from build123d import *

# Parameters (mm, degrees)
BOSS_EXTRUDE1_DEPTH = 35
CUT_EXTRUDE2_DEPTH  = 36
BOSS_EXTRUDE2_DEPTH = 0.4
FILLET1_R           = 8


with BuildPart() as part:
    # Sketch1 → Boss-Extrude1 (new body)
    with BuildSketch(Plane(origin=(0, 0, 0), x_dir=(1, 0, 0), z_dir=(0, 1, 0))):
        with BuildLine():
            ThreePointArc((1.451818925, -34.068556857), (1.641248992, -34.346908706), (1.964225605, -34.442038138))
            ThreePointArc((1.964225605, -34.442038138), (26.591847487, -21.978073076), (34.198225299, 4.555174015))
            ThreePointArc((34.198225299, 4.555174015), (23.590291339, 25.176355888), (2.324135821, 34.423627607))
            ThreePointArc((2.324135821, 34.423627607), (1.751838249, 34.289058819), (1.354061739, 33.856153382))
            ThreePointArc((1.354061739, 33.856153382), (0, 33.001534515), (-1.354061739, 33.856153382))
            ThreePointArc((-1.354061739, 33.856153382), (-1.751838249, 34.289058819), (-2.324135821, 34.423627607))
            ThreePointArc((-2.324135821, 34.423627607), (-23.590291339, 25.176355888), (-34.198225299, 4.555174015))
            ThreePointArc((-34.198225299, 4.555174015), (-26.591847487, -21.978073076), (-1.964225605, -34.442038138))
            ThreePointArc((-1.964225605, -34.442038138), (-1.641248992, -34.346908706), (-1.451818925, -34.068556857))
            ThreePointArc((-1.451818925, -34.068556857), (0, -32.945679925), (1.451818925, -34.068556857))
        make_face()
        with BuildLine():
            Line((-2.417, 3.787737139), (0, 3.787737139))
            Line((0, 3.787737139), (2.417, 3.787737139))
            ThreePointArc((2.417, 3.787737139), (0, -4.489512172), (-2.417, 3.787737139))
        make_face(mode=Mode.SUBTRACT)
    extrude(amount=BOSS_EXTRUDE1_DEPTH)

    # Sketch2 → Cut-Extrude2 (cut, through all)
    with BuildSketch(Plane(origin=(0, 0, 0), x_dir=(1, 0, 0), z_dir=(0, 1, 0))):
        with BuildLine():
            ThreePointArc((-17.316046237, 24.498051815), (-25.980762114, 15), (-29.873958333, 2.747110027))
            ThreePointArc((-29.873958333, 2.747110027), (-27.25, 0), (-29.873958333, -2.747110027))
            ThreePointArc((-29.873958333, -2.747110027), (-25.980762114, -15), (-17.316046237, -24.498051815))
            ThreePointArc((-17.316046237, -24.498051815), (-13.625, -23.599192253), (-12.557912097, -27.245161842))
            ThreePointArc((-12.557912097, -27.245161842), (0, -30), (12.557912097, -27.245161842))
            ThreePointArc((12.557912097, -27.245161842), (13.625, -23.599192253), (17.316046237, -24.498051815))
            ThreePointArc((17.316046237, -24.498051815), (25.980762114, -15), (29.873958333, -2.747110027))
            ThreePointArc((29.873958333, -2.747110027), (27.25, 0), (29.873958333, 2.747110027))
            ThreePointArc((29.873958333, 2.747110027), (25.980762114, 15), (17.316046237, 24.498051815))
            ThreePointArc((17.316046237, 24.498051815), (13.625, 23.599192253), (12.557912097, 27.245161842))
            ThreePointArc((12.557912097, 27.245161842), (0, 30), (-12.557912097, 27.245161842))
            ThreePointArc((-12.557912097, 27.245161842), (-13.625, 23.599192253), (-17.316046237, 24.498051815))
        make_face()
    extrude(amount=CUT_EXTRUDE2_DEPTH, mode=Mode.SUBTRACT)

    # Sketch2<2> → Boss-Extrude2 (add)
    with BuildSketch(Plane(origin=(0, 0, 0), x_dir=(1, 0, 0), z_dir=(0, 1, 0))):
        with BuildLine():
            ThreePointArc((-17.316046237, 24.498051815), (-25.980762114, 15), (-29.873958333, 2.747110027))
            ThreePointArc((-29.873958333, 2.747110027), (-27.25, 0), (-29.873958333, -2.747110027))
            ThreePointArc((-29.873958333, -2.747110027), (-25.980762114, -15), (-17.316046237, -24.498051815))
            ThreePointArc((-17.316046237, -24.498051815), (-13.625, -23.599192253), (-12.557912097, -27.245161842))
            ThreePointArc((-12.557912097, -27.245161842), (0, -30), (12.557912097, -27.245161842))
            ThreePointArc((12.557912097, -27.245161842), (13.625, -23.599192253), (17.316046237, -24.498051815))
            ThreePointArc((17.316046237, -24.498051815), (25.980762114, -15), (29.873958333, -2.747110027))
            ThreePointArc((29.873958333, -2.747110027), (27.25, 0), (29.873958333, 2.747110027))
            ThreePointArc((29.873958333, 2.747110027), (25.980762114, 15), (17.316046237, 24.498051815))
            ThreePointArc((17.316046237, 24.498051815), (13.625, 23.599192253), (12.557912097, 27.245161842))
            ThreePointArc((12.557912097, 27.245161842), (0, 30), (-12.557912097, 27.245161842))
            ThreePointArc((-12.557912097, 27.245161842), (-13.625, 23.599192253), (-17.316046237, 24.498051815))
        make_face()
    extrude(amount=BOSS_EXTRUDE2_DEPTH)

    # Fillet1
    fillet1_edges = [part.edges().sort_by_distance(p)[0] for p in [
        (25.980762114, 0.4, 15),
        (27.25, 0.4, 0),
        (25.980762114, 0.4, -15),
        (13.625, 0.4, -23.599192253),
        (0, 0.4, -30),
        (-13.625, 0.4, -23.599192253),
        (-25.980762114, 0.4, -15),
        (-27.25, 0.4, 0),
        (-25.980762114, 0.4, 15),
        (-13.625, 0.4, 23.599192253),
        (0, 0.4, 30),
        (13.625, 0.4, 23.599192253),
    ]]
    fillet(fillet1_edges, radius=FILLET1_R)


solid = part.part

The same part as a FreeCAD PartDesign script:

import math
import FreeCAD as App
import Part
import Sketcher

V = App.Vector
Q = App.Units.Quantity


def edges_at(feature, points):
    """Names of the edges that pass closest to the given points."""
    edges = feature.Shape.Edges
    near = lambda p: min(range(len(edges)), key=lambda i: edges[i].distToShape(Part.Vertex(*p))[0])
    return sorted({f"Edge{near(p) + 1}" for p in points})

doc = App.newDocument("Part")
body = doc.addObject("PartDesign::Body", "Body")

sketch1 = body.newObject("Sketcher::SketchObject", "Sketch")
sketch1.AttachmentSupport = (doc.getObject("XZ_Plane"), [""])
sketch1.MapMode = "FlatFace"
sketch1.addGeometry([
    Part.ArcOfCircle(Part.Circle(V(1.935759, 33.942849, 0), V(0, 0, 1), 0.5), math.radians(86.736153), math.radians(165.438717)),
    Part.ArcOfCircle(Part.Circle(V(0, -0.002001, 0), V(0, 0, 1), 34.5), math.radians(-7.583795), math.radians(86.736153)),
    Part.ArcOfCircle(Part.Circle(V(0, -0.002001, 0), V(0, 0, 1), 34.5), math.radians(-86.137272), math.radians(-7.583795)),
    Part.ArcOfCircle(Part.Circle(V(2.25677, -33.425899, 0), V(0, 0, 1), 1), math.radians(-154.516314), math.radians(-86.137272)),
    Part.ArcOfCircle(Part.Circle(V(0, -34.501535, 0), V(0, 0, 1), 1.5), math.radians(25.483686), math.radians(154.516314)),
    Part.ArcOfCircle(Part.Circle(V(-2.25677, -33.425899, 0), V(0, 0, 1), 1), math.radians(-93.862728), math.radians(-25.483686)),
    Part.ArcOfCircle(Part.Circle(V(0, -0.002001, 0), V(0, 0, 1), 34.5), math.radians(-172.416205), math.radians(-93.862728)),
    Part.ArcOfCircle(Part.Circle(V(0, -0.002001, 0), V(0, 0, 1), 34.5), math.radians(93.263847), math.radians(187.583795)),
    Part.ArcOfCircle(Part.Circle(V(-1.935759, 33.942849, 0), V(0, 0, 1), 0.5), math.radians(14.561283), math.radians(93.263847)),
    Part.ArcOfCircle(Part.Circle(V(0, 34.44568, 0), V(0, 0, 1), 1.5), math.radians(-165.438717), math.radians(-14.561283)),
    Part.ArcOfCircle(Part.Circle(V(0, -0.002001, 0), V(0, 0, 1), 4.491513), math.radians(-57.44384), math.radians(237.44384)),
    Part.LineSegment(V(-2.417, -3.787737, 0), V(2.417, -3.787737, 0)),
], False)
sketch1.addConstraint([
    Sketcher.Constraint("Tangent", 0, 1, 1, 2),
    Sketcher.Constraint("Tangent", 1, 1, 2, 2),
    Sketcher.Constraint("Tangent", 2, 1, 3, 2),
    Sketcher.Constraint("Tangent", 3, 1, 4, 1),
    Sketcher.Constraint("Tangent", 4, 2, 5, 2),
    Sketcher.Constraint("Tangent", 5, 1, 6, 2),
    Sketcher.Constraint("Tangent", 6, 1, 7, 2),
    Sketcher.Constraint("Tangent", 7, 1, 8, 2),
    Sketcher.Constraint("Tangent", 8, 1, 9, 1),
    Sketcher.Constraint("Tangent", 9, 2, 0, 2),
    Sketcher.Constraint("Coincident", 10, 1, 11, 2),
    Sketcher.Constraint("Coincident", 11, 1, 10, 2),
    Sketcher.Constraint("Horizontal", 11),
    Sketcher.Constraint("Coincident", 6, 3, 1, 3),
    Sketcher.Constraint("Coincident", 10, 3, 1, 3),
    Sketcher.Constraint("Equal", 1, 2),
    Sketcher.Constraint("Equal", 3, 5),
    Sketcher.Constraint("Equal", 2, 6),
    Sketcher.Constraint("Equal", 6, 7),
    Sketcher.Constraint("Equal", 0, 8),
    Sketcher.Constraint("Equal", 4, 9),
    Sketcher.Constraint("Symmetric", 3, 3, 5, 3, -2),
    Sketcher.Constraint("PointOnObject", 9, 3, -2),
    Sketcher.Constraint("Horizontal", 1, 1, 6, 1),
    Sketcher.Constraint("Radius", 3, Q("1 mm")),
    Sketcher.Constraint("Radius", 0, Q("0.5 mm")),
    Sketcher.Constraint("Radius", 1, Q("34.5 mm")),
    Sketcher.Constraint("Radius", 4, Q("1.5 mm")),
    Sketcher.Constraint("DistanceX", 11, 1, 11, 2, Q("4.834 mm")),
    Sketcher.Constraint("DistanceY", 1, 3, -1, 1, Q("0.002001 mm")),
    Sketcher.Constraint("Radius", 10, Q("4.491513 mm")),
    Sketcher.Constraint("DistanceY", 3, 3, -1, 1, Q("33.425899 mm")),
    Sketcher.Constraint("DistanceX", -1, 1, 0, 3, Q("1.935759 mm")),
    Sketcher.Constraint("DistanceX", -1, 1, 1, 1, Q("34.198225 mm")),
])
pad1 = body.newObject("PartDesign::Pad", "Pad")
pad1.Profile = sketch1
pad1.Length = 35
pad1.Reversed = True

sketch2 = body.newObject("Sketcher::SketchObject", "Sketch001")
sketch2.AttachmentSupport = (doc.getObject("XZ_Plane"), [""])
sketch2.MapMode = "FlatFace"
sketch2.addGeometry([
    Part.ArcOfCircle(Part.Circle(V(0, 0, 0), V(0, 0, 1), 30), math.radians(-174.746046), math.radians(-125.253954)),
    Part.ArcOfCircle(Part.Circle(V(-30, 0, 0), V(0, 0, 1), 2.75), math.radians(-87.373023), math.radians(87.373023)),
    Part.ArcOfCircle(Part.Circle(V(0, 0, 0), V(0, 0, 1), 30), math.radians(125.253954), math.radians(174.746046)),
    Part.ArcOfCircle(Part.Circle(V(-15, 25.980762, 0), V(0, 0, 1), 2.75), math.radians(-147.373023), math.radians(27.373023)),
    Part.ArcOfCircle(Part.Circle(V(0, 0, 0), V(0, 0, 1), 30), math.radians(65.253954), math.radians(114.746046)),
    Part.ArcOfCircle(Part.Circle(V(15, 25.980762, 0), V(0, 0, 1), 2.75), math.radians(152.626977), math.radians(327.373023)),
    Part.ArcOfCircle(Part.Circle(V(0, 0, 0), V(0, 0, 1), 30), math.radians(5.253954), math.radians(54.746046)),
    Part.ArcOfCircle(Part.Circle(V(30, 0, 0), V(0, 0, 1), 2.75), math.radians(92.626977), math.radians(267.373023)),
    Part.ArcOfCircle(Part.Circle(V(0, 0, 0), V(0, 0, 1), 30), math.radians(-54.746046), math.radians(-5.253954)),
    Part.ArcOfCircle(Part.Circle(V(15, -25.980762, 0), V(0, 0, 1), 2.75), math.radians(32.626977), math.radians(207.373023)),
    Part.ArcOfCircle(Part.Circle(V(0, 0, 0), V(0, 0, 1), 30), math.radians(-114.746046), math.radians(-65.253954)),
    Part.ArcOfCircle(Part.Circle(V(-15, -25.980762, 0), V(0, 0, 1), 2.75), math.radians(-27.373023), math.radians(147.373023)),
], False)
sketch2.addConstraint([
    Sketcher.Constraint("Coincident", 0, 1, 1, 1),
    Sketcher.Constraint("Coincident", 1, 2, 2, 2),
    Sketcher.Constraint("Coincident", 2, 1, 3, 1),
    Sketcher.Constraint("Coincident", 3, 2, 4, 2),
    Sketcher.Constraint("Coincident", 4, 1, 5, 1),
    Sketcher.Constraint("Coincident", 5, 2, 6, 2),
    Sketcher.Constraint("Coincident", 6, 1, 7, 1),
    Sketcher.Constraint("Coincident", 7, 2, 8, 2),
    Sketcher.Constraint("Coincident", 8, 1, 9, 1),
    Sketcher.Constraint("Coincident", 9, 2, 10, 2),
    Sketcher.Constraint("Coincident", 10, 1, 11, 1),
    Sketcher.Constraint("Coincident", 11, 2, 0, 2),
    Sketcher.Constraint("Coincident", 0, 3, -1, 1),
    Sketcher.Constraint("Coincident", 2, 3, -1, 1),
    Sketcher.Constraint("Coincident", 4, 3, -1, 1),
    Sketcher.Constraint("Coincident", 6, 3, -1, 1),
    Sketcher.Constraint("Coincident", 8, 3, -1, 1),
    Sketcher.Constraint("Coincident", 10, 3, -1, 1),
    Sketcher.Constraint("Equal", 0, 2),
    Sketcher.Constraint("Equal", 1, 3),
    Sketcher.Constraint("Equal", 2, 4),
    Sketcher.Constraint("Equal", 3, 5),
    Sketcher.Constraint("Equal", 4, 6),
    Sketcher.Constraint("Equal", 5, 7),
    Sketcher.Constraint("Equal", 6, 8),
    Sketcher.Constraint("Equal", 7, 9),
    Sketcher.Constraint("Equal", 8, 10),
    Sketcher.Constraint("Equal", 9, 11),
    Sketcher.Constraint("Symmetric", 1, 3, 7, 3, -1, 1),
    Sketcher.Constraint("Symmetric", 3, 3, 9, 3, -1, 1),
    Sketcher.Constraint("Symmetric", 5, 3, 11, 3, -1, 1),
    Sketcher.Constraint("Symmetric", 3, 3, 5, 3, -2),
    Sketcher.Constraint("PointOnObject", 1, 3, -1),
    Sketcher.Constraint("Radius", 0, Q("30 mm")),
    Sketcher.Constraint("Radius", 1, Q("2.75 mm")),
    Sketcher.Constraint("DistanceX", 1, 3, -1, 1, Q("30 mm")),
    Sketcher.Constraint("DistanceX", 3, 3, -1, 1, Q("15 mm")),
    Sketcher.Constraint("DistanceY", 3, 3, 3, 2, Q("1.2644 mm")),
])
pocket1 = body.newObject("PartDesign::Pocket", "Pocket")
pocket1.Profile = sketch2
pocket1.Type = "ThroughAll"

sketch3 = body.newObject("Sketcher::SketchObject", "Sketch002")
sketch3.AttachmentSupport = (doc.getObject("XZ_Plane"), [""])
sketch3.MapMode = "FlatFace"
sketch3.addGeometry([
    Part.ArcOfCircle(Part.Circle(V(0, 0, 0), V(0, 0, 1), 30), math.radians(-174.746046), math.radians(-125.253954)),
    Part.ArcOfCircle(Part.Circle(V(-30, 0, 0), V(0, 0, 1), 2.75), math.radians(-87.373023), math.radians(87.373023)),
    Part.ArcOfCircle(Part.Circle(V(0, 0, 0), V(0, 0, 1), 30), math.radians(125.253954), math.radians(174.746046)),
    Part.ArcOfCircle(Part.Circle(V(-15, 25.980762, 0), V(0, 0, 1), 2.75), math.radians(-147.373023), math.radians(27.373023)),
    Part.ArcOfCircle(Part.Circle(V(0, 0, 0), V(0, 0, 1), 30), math.radians(65.253954), math.radians(114.746046)),
    Part.ArcOfCircle(Part.Circle(V(15, 25.980762, 0), V(0, 0, 1), 2.75), math.radians(152.626977), math.radians(327.373023)),
    Part.ArcOfCircle(Part.Circle(V(0, 0, 0), V(0, 0, 1), 30), math.radians(5.253954), math.radians(54.746046)),
    Part.ArcOfCircle(Part.Circle(V(30, 0, 0), V(0, 0, 1), 2.75), math.radians(92.626977), math.radians(267.373023)),
    Part.ArcOfCircle(Part.Circle(V(0, 0, 0), V(0, 0, 1), 30), math.radians(-54.746046), math.radians(-5.253954)),
    Part.ArcOfCircle(Part.Circle(V(15, -25.980762, 0), V(0, 0, 1), 2.75), math.radians(32.626977), math.radians(207.373023)),
    Part.ArcOfCircle(Part.Circle(V(0, 0, 0), V(0, 0, 1), 30), math.radians(-114.746046), math.radians(-65.253954)),
    Part.ArcOfCircle(Part.Circle(V(-15, -25.980762, 0), V(0, 0, 1), 2.75), math.radians(-27.373023), math.radians(147.373023)),
], False)
sketch3.addConstraint([
    Sketcher.Constraint("Coincident", 0, 1, 1, 1),
    Sketcher.Constraint("Coincident", 1, 2, 2, 2),
    Sketcher.Constraint("Coincident", 2, 1, 3, 1),
    Sketcher.Constraint("Coincident", 3, 2, 4, 2),
    Sketcher.Constraint("Coincident", 4, 1, 5, 1),
    Sketcher.Constraint("Coincident", 5, 2, 6, 2),
    Sketcher.Constraint("Coincident", 6, 1, 7, 1),
    Sketcher.Constraint("Coincident", 7, 2, 8, 2),
    Sketcher.Constraint("Coincident", 8, 1, 9, 1),
    Sketcher.Constraint("Coincident", 9, 2, 10, 2),
    Sketcher.Constraint("Coincident", 10, 1, 11, 1),
    Sketcher.Constraint("Coincident", 11, 2, 0, 2),
    Sketcher.Constraint("Coincident", 0, 3, -1, 1),
    Sketcher.Constraint("Coincident", 2, 3, -1, 1),
    Sketcher.Constraint("Coincident", 4, 3, -1, 1),
    Sketcher.Constraint("Coincident", 6, 3, -1, 1),
    Sketcher.Constraint("Coincident", 8, 3, -1, 1),
    Sketcher.Constraint("Coincident", 10, 3, -1, 1),
    Sketcher.Constraint("Equal", 0, 2),
    Sketcher.Constraint("Equal", 1, 3),
    Sketcher.Constraint("Equal", 2, 4),
    Sketcher.Constraint("Equal", 3, 5),
    Sketcher.Constraint("Equal", 4, 6),
    Sketcher.Constraint("Equal", 5, 7),
    Sketcher.Constraint("Equal", 6, 8),
    Sketcher.Constraint("Equal", 7, 9),
    Sketcher.Constraint("Equal", 8, 10),
    Sketcher.Constraint("Equal", 9, 11),
    Sketcher.Constraint("Symmetric", 1, 3, 7, 3, -1, 1),
    Sketcher.Constraint("Symmetric", 3, 3, 9, 3, -1, 1),
    Sketcher.Constraint("Symmetric", 5, 3, 11, 3, -1, 1),
    Sketcher.Constraint("Symmetric", 3, 3, 5, 3, -2),
    Sketcher.Constraint("PointOnObject", 1, 3, -1),
    Sketcher.Constraint("Radius", 0, Q("30 mm")),
    Sketcher.Constraint("Radius", 1, Q("2.75 mm")),
    Sketcher.Constraint("DistanceX", 1, 3, -1, 1, Q("30 mm")),
    Sketcher.Constraint("DistanceX", 3, 3, -1, 1, Q("15 mm")),
    Sketcher.Constraint("DistanceY", 3, 3, 3, 2, Q("1.2644 mm")),
])
pad2 = body.newObject("PartDesign::Pad", "Pad001")
pad2.Profile = sketch3
pad2.Length = 0.4
pad2.Reversed = True
doc.recompute()

fillet = body.newObject("PartDesign::Fillet", "Fillet")
fillet.Base = (pad2, edges_at(pad2, [
    (25.981, 0.4, 15),
    (27.25, 0.4, 0),
    (25.981, 0.4, -15),
    (13.625, 0.4, -23.599),
    (0, 0.4, -30),
    (-13.625, 0.4, -23.599),
    (-25.981, 0.4, -15),
    (-27.25, 0.4, 0),
    (-25.981, 0.4, 15),
    (-13.625, 0.4, 23.599),
    (0, 0.4, 30),
    (13.625, 0.4, 23.599),
]))
fillet.Radius = 8

doc.recompute()
